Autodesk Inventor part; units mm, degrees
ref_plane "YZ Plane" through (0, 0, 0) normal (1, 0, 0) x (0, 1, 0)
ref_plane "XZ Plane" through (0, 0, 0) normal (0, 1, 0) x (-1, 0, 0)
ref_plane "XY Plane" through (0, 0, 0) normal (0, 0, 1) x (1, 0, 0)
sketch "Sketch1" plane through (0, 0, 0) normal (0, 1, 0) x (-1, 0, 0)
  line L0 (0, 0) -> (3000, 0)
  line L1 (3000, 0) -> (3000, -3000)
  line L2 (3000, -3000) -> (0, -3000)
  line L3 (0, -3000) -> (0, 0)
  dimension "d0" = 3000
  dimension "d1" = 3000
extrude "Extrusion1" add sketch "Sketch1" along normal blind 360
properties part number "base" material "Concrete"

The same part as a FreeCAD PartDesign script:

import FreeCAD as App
import Part
import Sketcher

V = App.Vector

doc = App.newDocument("Part")
body = doc.addObject("PartDesign::Body", "Body")

# Sketch on XZ plane
sketch1 = body.newObject("Sketcher::SketchObject", "Sketch")
sketch1.AttachmentSupport = (doc.getObject("XZ_Plane"), [""])
sketch1.MapMode = "FlatFace"
sketch1.addGeometry(Part.LineSegment(V(-3000, 0, 0), V(0, 0, 0)), False)
sketch1.addGeometry(Part.LineSegment(V(0, 0, 0), V(0, -3000, 0)), False)
sketch1.addGeometry(Part.LineSegment(V(0, -3000, 0), V(-3000, -3000, 0)), False)
sketch1.addGeometry(Part.LineSegment(V(-3000, -3000, 0), V(-3000, 0, 0)), False)
sketch1.addConstraint(Sketcher.Constraint("Coincident", 0, 2, 1, 1))
sketch1.addConstraint(Sketcher.Constraint("Coincident", 1, 2, 2, 1))
sketch1.addConstraint(Sketcher.Constraint("Coincident", 2, 2, 3, 1))
sketch1.addConstraint(Sketcher.Constraint("Coincident", 3, 2, 0, 1))
sketch1.addConstraint(Sketcher.Constraint("Horizontal", 0))
sketch1.addConstraint(Sketcher.Constraint("Vertical", 1))
sketch1.addConstraint(Sketcher.Constraint("Horizontal", 2))
sketch1.addConstraint(Sketcher.Constraint("Vertical", 3))
sketch1.addConstraint(Sketcher.Constraint("Coincident", 0, 2, -1, 1))
sketch1.addConstraint(Sketcher.Constraint("Equal", 2, 1))
sketch1.addConstraint(Sketcher.Constraint("DistanceX", 0, 1, 0, 2, 3000.0))
pad1 = body.newObject("PartDesign::Pad", "Pad")
pad1.Profile = sketch1
pad1.Length = 360
pad1.Reversed = True

doc.recompute()
